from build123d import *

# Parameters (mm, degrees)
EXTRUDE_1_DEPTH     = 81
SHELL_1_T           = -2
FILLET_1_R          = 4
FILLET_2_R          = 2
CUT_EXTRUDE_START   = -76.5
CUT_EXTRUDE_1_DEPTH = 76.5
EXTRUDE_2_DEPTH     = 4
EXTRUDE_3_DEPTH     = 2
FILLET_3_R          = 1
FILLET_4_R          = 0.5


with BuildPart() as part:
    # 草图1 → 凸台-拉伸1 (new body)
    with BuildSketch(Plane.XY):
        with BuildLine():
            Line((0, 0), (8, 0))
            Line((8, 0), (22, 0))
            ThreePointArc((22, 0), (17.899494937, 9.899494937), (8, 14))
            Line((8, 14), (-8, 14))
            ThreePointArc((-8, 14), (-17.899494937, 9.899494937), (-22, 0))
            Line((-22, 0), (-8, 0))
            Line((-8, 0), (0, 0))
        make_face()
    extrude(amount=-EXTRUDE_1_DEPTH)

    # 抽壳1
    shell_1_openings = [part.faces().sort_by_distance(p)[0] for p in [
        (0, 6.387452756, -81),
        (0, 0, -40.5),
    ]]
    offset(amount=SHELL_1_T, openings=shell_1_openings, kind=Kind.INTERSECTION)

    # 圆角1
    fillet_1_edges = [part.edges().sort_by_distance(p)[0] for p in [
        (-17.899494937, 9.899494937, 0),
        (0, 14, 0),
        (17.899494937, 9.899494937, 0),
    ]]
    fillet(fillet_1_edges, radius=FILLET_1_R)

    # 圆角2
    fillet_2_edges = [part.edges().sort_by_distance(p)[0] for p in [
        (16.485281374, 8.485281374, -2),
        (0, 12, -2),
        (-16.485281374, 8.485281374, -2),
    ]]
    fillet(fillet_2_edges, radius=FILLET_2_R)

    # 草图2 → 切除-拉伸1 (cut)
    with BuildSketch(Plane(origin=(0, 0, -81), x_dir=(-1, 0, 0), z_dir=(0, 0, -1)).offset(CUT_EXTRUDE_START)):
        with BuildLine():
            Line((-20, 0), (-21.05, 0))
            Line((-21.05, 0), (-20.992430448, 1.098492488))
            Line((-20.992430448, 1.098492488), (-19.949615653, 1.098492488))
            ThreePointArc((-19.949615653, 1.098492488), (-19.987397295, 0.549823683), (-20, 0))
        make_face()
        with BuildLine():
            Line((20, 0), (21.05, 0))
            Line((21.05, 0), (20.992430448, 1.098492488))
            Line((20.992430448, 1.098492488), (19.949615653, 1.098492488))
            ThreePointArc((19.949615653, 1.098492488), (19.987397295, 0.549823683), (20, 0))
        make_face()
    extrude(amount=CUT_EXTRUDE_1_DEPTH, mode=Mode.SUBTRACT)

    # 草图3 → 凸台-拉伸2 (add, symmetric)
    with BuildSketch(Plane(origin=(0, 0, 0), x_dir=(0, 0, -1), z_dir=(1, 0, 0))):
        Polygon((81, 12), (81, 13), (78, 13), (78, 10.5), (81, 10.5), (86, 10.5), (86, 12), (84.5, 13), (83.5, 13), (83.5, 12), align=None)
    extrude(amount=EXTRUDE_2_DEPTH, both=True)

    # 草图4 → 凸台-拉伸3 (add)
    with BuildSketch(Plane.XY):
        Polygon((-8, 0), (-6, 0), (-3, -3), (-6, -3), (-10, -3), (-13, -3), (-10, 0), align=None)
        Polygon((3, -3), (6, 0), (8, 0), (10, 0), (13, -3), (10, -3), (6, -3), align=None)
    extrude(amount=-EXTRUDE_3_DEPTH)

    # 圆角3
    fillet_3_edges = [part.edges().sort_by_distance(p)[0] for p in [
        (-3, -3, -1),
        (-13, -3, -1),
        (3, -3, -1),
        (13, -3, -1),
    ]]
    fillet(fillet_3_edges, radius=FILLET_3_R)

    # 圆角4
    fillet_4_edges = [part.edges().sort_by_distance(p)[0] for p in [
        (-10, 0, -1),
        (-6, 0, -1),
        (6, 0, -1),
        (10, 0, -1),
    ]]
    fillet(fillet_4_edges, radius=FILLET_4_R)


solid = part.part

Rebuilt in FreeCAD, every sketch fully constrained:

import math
import FreeCAD as App
import Part
import Sketcher
from FreeCAD import Vector
Q = App.Units.Quantity


def edges_at(feature, points):
    """Names of the edges that pass closest to the given points."""
    edges = feature.Shape.Edges
    near = lambda p: min(range(len(edges)), key=lambda i: edges[i].distToShape(Part.Vertex(*p))[0])
    return sorted({f"Edge{near(p) + 1}" for p in points})


def faces_at(feature, points):
    """Names of the faces that lie closest to the given points."""
    faces = feature.Shape.Faces
    near = lambda p: min(range(len(faces)), key=lambda i: faces[i].distToShape(Part.Vertex(*p))[0])
    return sorted({f"Face{near(p) + 1}" for p in points})


def add_polygon(sketch, points):
    """Adds a closed chain of lines whose ends are joined by coincident constraints."""
    first, n = sketch.GeometryCount, len(points)
    for a, b in zip(points, points[1:] + points[:1]):
        sketch.addGeometry(Part.LineSegment(App.Vector(*a, 0), App.Vector(*b, 0)), False)
    for i in range(n):
        sketch.addConstraint(Sketcher.Constraint("Coincident", first + i, 2, first + (i + 1) % n, 1))

doc = App.newDocument("Part")
params = doc.addObject("Spreadsheet::Sheet", "Params")
for row, (alias, value) in enumerate([
    ("sketch1_radius", "14 mm"),
    ("sketch1_width", "16 mm"),
    ("pad1_length", "81 mm"),
    ("thickness_wall", "2 mm"),
    ("fillet_radius", "4 mm"),
    ("fillet2_radius", "2 mm"),
    ("sketch2_radius", "12 mm"),
    ("sketch2_length", "1.1 mm"),
    ("sketch2_width", "1.05 mm"),
    ("pocket1_length", "76.5 mm"),
    ("sketch3_width", "1 mm"),
    ("sketch3_height", "3 mm"),
    ("sketch3_height2", "8 mm"),
    ("sketch3_width2", "2.5 mm"),
    ("pad2_length", "8 mm"),
    ("sketch4_width", "4 mm"),
    ("sketch4_width2", "10 mm"),
    ("pad3_length", "2 mm"),
    ("fillet3_radius", "1 mm"),
    ("fillet4_radius", "0.5 mm"),
], start=1):
    params.set(f"A{row}", alias)
    params.set(f"B{row}", "=" + value)
    params.setAlias(f"B{row}", alias)

body = doc.addObject("PartDesign::Body", "Body")

# Sketch on XY plane
sketch1 = doc.addObject("Sketcher::SketchObject", "Sketch")
body.addObject(sketch1)
sketch1.AttachmentSupport = (doc.XY_Plane, [""])
sketch1.MapMode = "FlatFace"
sketch1.addGeometry([
    Part.ArcOfCircle(Part.Circle(Vector(8, 0, 0), Vector(0, 0, 1), 14), math.radians(0), math.radians(90)),
    Part.LineSegment(Vector(8, 14, 0), Vector(-8, 14, 0)),
    Part.ArcOfCircle(Part.Circle(Vector(-8, 0, 0), Vector(0, 0, 1), 14), math.radians(90), math.radians(180)),
    Part.LineSegment(Vector(-22, 0, 0), Vector(22, 0, 0)),
], False)
sketch1.addConstraint([
    Sketcher.Constraint("Tangent", 0, 2, 1, 1),
    Sketcher.Constraint("Tangent", 1, 2, 2, 1),
    Sketcher.Constraint("Coincident", 2, 2, 3, 1),
    Sketcher.Constraint("Coincident", 3, 2, 0, 1),
    Sketcher.Constraint("Horizontal", 1),
    Sketcher.Constraint("Horizontal", 3),
    Sketcher.Constraint("Equal", 0, 2),
    Sketcher.Constraint("Symmetric", 0, 3, 2, 3, -1, 1),
    Sketcher.Constraint("PointOnObject", 2, 2, -1),
    Sketcher.Constraint("Radius", 0, Q("14 mm")),
    Sketcher.Constraint("DistanceX", 1, 2, 1, 1, Q("16 mm")),
])
sketch1.setExpression("Constraints[9]", "Params.sketch1_radius")
sketch1.setExpression("Constraints[10]", "Params.sketch1_width")
pad1 = doc.addObject("PartDesign::Pad", "Pad")
body.addObject(pad1)
pad1.Profile = sketch1
pad1.setExpression("Length", "Params.pad1_length")
pad1.Reversed = True
doc.recompute()

thickness = doc.addObject("PartDesign::Thickness", "Thickness")
body.addObject(thickness)
thickness.Base = (pad1, faces_at(pad1, [(0, 7, -81), (0, 0, -40.5)]))
thickness.setExpression("Value", "Params.thickness_wall")
thickness.Reversed = True
thickness.Join = "Intersection"
doc.recompute()

fillet = doc.addObject("PartDesign::Fillet", "Fillet")
body.addObject(fillet)
fillet.Base = (thickness, edges_at(thickness, [(-17.899, 9.899, 0), (0, 14, 0), (17.899, 9.899, 0)]))
fillet.setExpression("Radius", "Params.fillet_radius")
doc.recompute()

fillet2 = doc.addObject("PartDesign::Fillet", "Fillet001")
body.addObject(fillet2)
fillet2.Base = (fillet, edges_at(fillet, [(16.485, 8.485, -2), (0, 12, -2), (-16.485, 8.485, -2)]))
fillet2.setExpression("Radius", "Params.fillet2_radius")

# Sketch on XY plane
sketch2 = doc.addObject("Sketcher::SketchObject", "Sketch001")
body.addObject(sketch2)
sketch2.AttachmentSupport = (doc.XY_Plane, [""])
sketch2.MapMode = "FlatFace"
sketch2.AttachmentOffset = App.Placement(Vector(0, 0, -4.5), App.Rotation())
sketch2.addGeometry([
    Part.LineSegment(Vector(21.1, 0, 0), Vector(20, 0, 0)),  # 0
    Part.ArcOfCircle(Part.Circle(Vector(8, 0, 0), Vector(0, 0, 1), 12), math.radians(0), math.radians(5.25)),  # 1
    Part.LineSegment(Vector(19.9, 1.1, 0), Vector(21, 1.1, 0)),  # 2
    Part.LineSegment(Vector(21, 1.1, 0), Vector(21.1, 0, 0)),  # 3
    Part.LineSegment(Vector(-20, 0, 0), Vector(-21.1, 0, 0)),  # 4
    Part.LineSegment(Vector(-21.1, 0, 0), Vector(-21, 1.1, 0)),  # 5
    Part.LineSegment(Vector(-21, 1.1, 0), Vector(-19.9, 1.1, 0)),  # 6
    Part.ArcOfCircle(Part.Circle(Vector(-8, 0, 0), Vector(0, 0, 1), 12), math.radians(174.75), math.radians(180)),  # 7
], False)
sketch2.addConstraint([
    Sketcher.Constraint("Coincident", 0, 2, 1, 1),
    Sketcher.Constraint("Coincident", 1, 2, 2, 1),
    Sketcher.Constraint("Coincident", 2, 2, 3, 1),
    Sketcher.Constraint("Coincident", 3, 2, 0, 1),
    Sketcher.Constraint("Coincident", 4, 2, 5, 1),
    Sketcher.Constraint("Coincident", 5, 2, 6, 1),
    Sketcher.Constraint("Coincident", 6, 2, 7, 1),
    Sketcher.Constraint("Coincident", 7, 2, 4, 1),
    Sketcher.Constraint("Horizontal", 0),
    Sketcher.Constraint("Horizontal", 2),
    Sketcher.Constraint("Horizontal", 4),
    Sketcher.Constraint("Horizontal", 6),
    Sketcher.Constraint("Equal", 1, 7),
    Sketcher.Constraint("Symmetric", 1, 3, 7, 3, -1, 1),
    Sketcher.Constraint("Symmetric", 3, 2, 4, 2, -1, 1),
    Sketcher.Constraint("Symmetric", 2, 2, 5, 2, -2),
    Sketcher.Constraint("PointOnObject", 1, 3, -1),
    Sketcher.Constraint("PointOnObject", 0, 2, -1),
    Sketcher.Constraint("Radius", 1, Q("12 mm")),
    Sketcher.Constraint("Angle", 3, Q("-87 deg")),
    Sketcher.Constraint("DistanceX", -1, 1, 1, 3, Q("8 mm")),
    Sketcher.Constraint("Distance", 3, Q("1.1 mm")),
    Sketcher.Constraint("DistanceX", 0, 2, 0, 1, Q("1.05 mm")),
])
sketch2.setExpression("Constraints[18]", "Params.sketch2_radius")
sketch2.setExpression("Constraints[21]", "Params.sketch2_length")
sketch2.setExpression("Constraints[22]", "Params.sketch2_width")
pocket1 = doc.addObject("PartDesign::Pocket", "Pocket")
body.addObject(pocket1)
pocket1.Profile = sketch2
pocket1.setExpression("Length", "Params.pocket1_length")

# Sketch on YZ plane
sketch3 = doc.addObject("Sketcher::SketchObject", "Sketch002")
body.addObject(sketch3)
sketch3.AttachmentSupport = (doc.YZ_Plane, [""])
sketch3.MapMode = "FlatFace"
add_polygon(sketch3, [(12, -81), (13, -81), (13, -78), (10.5, -78), (10.5, -86), (12, -86), (13, -84.5), (13, -83.5), (12, -83.5)])  # lines 0-8
sketch3.addConstraint([
    Sketcher.Constraint("Horizontal", 0),
    Sketcher.Constraint("Vertical", 1),
    Sketcher.Constraint("Horizontal", 2),
    Sketcher.Constraint("Vertical", 3),
    Sketcher.Constraint("Horizontal", 4),
    Sketcher.Constraint("Vertical", 6),
    Sketcher.Constraint("Horizontal", 7),
    Sketcher.Constraint("Vertical", 8),
    Sketcher.Constraint("Vertical", 1, 2, 5, 2),
    Sketcher.Constraint("Vertical", 4, 2, 7, 2),
    Sketcher.Constraint("Equal", 7, 6),
    Sketcher.Constraint("Equal", 2, 8),
    Sketcher.Constraint("DistanceX", 0, 1, 0, 2, Q("1 mm")),
    Sketcher.Constraint("DistanceY", 1, 1, 1, 2, Q("3 mm")),
    Sketcher.Constraint("DistanceY", 3, 2, 3, 1, Q("8 mm")),
    Sketcher.Constraint("DistanceX", 2, 2, 2, 1, Q("2.5 mm")),
    Sketcher.Constraint("DistanceX", -1, 1, 0, 2, Q("13 mm")),
    Sketcher.Constraint("DistanceY", 0, 2, -1, 1, Q("81 mm")),
])
sketch3.setExpression("Constraints[21]", "Params.sketch3_width")
sketch3.setExpression("Constraints[22]", "Params.sketch3_height")
sketch3.setExpression("Constraints[23]", "Params.sketch3_height2")
sketch3.setExpression("Constraints[24]", "Params.sketch3_width2")
pad2 = doc.addObject("PartDesign::Pad", "Pad001")
body.addObject(pad2)
pad2.Profile = sketch3
pad2.setExpression("Length", "Params.pad2_length")
pad2.Midplane = True

# Sketch on XY plane
sketch4 = doc.addObject("Sketcher::SketchObject", "Sketch003")
body.addObject(sketch4)
sketch4.AttachmentSupport = (doc.XY_Plane, [""])
sketch4.MapMode = "FlatFace"
add_polygon(sketch4, [(-6, 0), (-10, 0), (-13, -3), (-3, -3)])  # lines 0-3
add_polygon(sketch4, [(6, 0), (3, -3), (13, -3), (10, 0)])  # lines 4-7
sketch4.addConstraint([
    Sketcher.Constraint("Horizontal", 0),
    Sketcher.Constraint("Horizontal", 2),
    Sketcher.Constraint("Horizontal", 5),
    Sketcher.Constraint("Horizontal", 7),
    Sketcher.Constraint("Symmetric", 0, 2, 6, 2, -1, 1),
    Sketcher.Constraint("Symmetric", 2, 2, 4, 2, -2),
    Sketcher.Constraint("Symmetric", 3, 2, 7, 2, -2),
    Sketcher.Constraint("Perpendicular", 1, 3),
    Sketcher.Constraint("Perpendicular", 3, 4),
    Sketcher.Constraint("Perpendicular", 4, 6),
    Sketcher.Constraint("DistanceX", 0, 2, 0, 1, Q("4 mm")),
    Sketcher.Constraint("DistanceX", 2, 1, 2, 2, Q("10 mm")),
    Sketcher.Constraint("DistanceX", 0, 2, -1, 1, Q("10 mm")),
])
sketch4.setExpression("Constraints[18]", "Params.sketch4_width")
sketch4.setExpression("Constraints[19]", "Params.sketch4_width2")
pad3 = doc.addObject("PartDesign::Pad", "Pad002")
body.addObject(pad3)
pad3.Profile = sketch4
pad3.setExpression("Length", "Params.pad3_length")
pad3.Reversed = True
doc.recompute()

fillet3 = doc.addObject("PartDesign::Fillet", "Fillet002")
body.addObject(fillet3)
fillet3.Base = (pad3, edges_at(pad3, [
    (-3, -3, -1),
    (-13, -3, -1),
    (3, -3, -1),
    (13, -3, -1),
]))
fillet3.setExpression("Radius", "Params.fillet3_radius")
doc.recompute()

fillet4 = doc.addObject("PartDesign::Fillet", "Fillet003")
body.addObject(fillet4)
fillet4.Base = (fillet3, edges_at(fillet3, [
    (-10, 0, -1),
    (-6, 0, -1),
    (6, 0, -1),
    (10, 0, -1),
]))
fillet4.setExpression("Radius", "Params.fillet4_radius")

doc.recompute()
